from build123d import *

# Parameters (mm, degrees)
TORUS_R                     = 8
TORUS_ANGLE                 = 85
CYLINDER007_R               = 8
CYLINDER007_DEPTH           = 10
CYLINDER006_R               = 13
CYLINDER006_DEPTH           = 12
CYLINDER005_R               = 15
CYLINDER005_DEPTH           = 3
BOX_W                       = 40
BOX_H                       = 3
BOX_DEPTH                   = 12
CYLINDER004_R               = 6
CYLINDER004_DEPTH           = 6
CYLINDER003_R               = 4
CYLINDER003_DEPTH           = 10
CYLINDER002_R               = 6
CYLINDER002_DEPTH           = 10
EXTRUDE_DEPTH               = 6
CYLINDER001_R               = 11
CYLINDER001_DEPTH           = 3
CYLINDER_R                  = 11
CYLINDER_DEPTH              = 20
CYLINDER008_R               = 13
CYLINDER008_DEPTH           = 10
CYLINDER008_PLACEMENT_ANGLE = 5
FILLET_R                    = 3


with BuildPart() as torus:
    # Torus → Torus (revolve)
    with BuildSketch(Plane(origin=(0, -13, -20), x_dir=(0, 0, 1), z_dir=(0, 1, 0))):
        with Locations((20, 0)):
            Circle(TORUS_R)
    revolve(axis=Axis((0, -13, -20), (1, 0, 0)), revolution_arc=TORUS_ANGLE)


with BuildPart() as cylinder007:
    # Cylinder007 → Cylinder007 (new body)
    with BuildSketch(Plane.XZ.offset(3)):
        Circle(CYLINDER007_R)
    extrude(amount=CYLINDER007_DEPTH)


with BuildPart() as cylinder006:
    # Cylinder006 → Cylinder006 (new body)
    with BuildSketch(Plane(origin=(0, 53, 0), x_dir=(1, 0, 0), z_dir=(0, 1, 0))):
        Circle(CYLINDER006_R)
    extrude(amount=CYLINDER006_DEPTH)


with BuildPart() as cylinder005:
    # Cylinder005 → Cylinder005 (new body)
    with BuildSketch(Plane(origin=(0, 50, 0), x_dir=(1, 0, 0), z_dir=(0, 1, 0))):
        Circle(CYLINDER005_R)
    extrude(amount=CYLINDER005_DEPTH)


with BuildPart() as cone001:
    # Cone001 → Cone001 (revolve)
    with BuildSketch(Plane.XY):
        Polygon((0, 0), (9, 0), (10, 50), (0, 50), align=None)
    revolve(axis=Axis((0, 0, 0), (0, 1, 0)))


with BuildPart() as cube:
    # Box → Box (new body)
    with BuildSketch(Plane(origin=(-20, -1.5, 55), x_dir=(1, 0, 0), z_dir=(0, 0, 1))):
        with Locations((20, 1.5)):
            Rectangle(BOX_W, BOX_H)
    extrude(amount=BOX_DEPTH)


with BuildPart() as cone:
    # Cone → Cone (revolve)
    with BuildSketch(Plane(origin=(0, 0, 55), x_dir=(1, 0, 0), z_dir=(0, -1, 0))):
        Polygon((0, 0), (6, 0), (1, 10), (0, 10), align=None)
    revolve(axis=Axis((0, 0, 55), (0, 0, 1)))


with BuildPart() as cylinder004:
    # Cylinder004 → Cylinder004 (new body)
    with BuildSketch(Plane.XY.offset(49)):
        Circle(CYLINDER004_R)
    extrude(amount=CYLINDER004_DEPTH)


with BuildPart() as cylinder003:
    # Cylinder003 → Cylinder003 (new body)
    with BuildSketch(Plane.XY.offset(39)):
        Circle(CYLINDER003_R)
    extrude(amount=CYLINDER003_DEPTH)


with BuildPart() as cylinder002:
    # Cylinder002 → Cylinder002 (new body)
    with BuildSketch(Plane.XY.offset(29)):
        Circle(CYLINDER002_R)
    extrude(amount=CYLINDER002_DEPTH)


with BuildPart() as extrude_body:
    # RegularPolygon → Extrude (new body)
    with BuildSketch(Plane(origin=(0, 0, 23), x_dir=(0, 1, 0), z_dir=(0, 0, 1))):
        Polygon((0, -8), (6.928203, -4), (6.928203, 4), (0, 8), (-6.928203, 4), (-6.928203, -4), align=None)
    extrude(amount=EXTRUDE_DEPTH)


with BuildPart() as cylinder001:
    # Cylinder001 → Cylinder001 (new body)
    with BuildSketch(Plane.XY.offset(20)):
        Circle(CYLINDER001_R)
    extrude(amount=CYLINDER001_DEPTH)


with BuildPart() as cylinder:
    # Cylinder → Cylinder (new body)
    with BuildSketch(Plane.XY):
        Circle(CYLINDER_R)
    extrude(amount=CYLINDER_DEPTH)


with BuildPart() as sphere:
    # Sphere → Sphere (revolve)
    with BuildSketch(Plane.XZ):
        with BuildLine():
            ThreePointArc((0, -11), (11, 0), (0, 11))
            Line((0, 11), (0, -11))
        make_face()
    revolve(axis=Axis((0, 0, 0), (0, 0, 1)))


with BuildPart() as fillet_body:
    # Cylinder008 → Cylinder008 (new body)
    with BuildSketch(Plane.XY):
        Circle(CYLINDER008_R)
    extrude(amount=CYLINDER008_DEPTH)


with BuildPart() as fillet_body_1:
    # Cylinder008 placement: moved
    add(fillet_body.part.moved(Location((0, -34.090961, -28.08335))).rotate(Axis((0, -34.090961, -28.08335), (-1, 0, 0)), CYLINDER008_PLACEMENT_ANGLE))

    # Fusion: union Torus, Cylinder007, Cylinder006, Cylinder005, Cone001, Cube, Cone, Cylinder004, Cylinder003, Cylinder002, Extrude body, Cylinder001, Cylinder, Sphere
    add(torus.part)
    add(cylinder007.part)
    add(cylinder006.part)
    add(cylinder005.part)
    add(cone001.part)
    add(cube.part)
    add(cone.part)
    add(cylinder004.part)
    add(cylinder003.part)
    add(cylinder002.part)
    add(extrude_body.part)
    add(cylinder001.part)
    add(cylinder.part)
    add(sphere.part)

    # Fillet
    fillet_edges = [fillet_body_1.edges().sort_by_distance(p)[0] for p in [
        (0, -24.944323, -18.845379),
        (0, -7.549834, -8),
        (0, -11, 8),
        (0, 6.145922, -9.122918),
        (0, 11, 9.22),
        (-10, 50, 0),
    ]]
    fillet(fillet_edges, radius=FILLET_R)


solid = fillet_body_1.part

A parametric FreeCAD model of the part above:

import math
import FreeCAD as App
import Part
import Sketcher

V = App.Vector
Q = App.Units.Quantity


def edges_at(feature, points):
    """Names of the edges that pass closest to the given points."""
    edges = feature.Shape.Edges
    near = lambda p: min(range(len(edges)), key=lambda i: edges[i].distToShape(Part.Vertex(*p))[0])
    return sorted({f"Edge{near(p) + 1}" for p in points})

doc = App.newDocument("Part")
body = doc.addObject("PartDesign::Body", "Body")

# Sketch on XZ plane
sketch1 = doc.addObject("Sketcher::SketchObject", "Sketch")
body.addObject(sketch1)
sketch1.AttachmentSupport = (doc.XZ_Plane, [""])
sketch1.MapMode = "FlatFace"
sketch1.AttachmentOffset = App.Placement(V(0, 0, 13), App.Rotation())
sketch1.addGeometry(Part.Circle(V(0, 0, 0), V(0, 0, 1), 8), False)
sketch1.addGeometry(Part.LineSegment(V(0, -20, 0), V(10, -20, 0)), True)  # axis
sketch1.addConstraint([
    Sketcher.Constraint("Horizontal", 1),
    Sketcher.Constraint("Coincident", 0, 3, -1, 1),
    Sketcher.Constraint("PointOnObject", 1, 1, -2),
    Sketcher.Constraint("Diameter", 0, Q("16 mm")),
    Sketcher.Constraint("DistanceX", 1, 1, 1, 2, Q("10 mm")),
    Sketcher.Constraint("DistanceY", 1, 1, -1, 1, Q("20 mm")),
])
revolution = doc.addObject("PartDesign::Revolution", "Revolution")
body.addObject(revolution)
revolution.Profile = sketch1
revolution.ReferenceAxis = (sketch1, ["Axis0"])
revolution.Angle = 85
body2 = doc.addObject("PartDesign::Body", "Body001")

# Sketch on XZ plane
sketch2 = doc.addObject("Sketcher::SketchObject", "Sketch001")
body2.addObject(sketch2)
sketch2.AttachmentSupport = (doc.getObject("XZ_Plane001"), [""])
sketch2.MapMode = "FlatFace"
sketch2.AttachmentOffset = App.Placement(V(0, 0, 3), App.Rotation())
sketch2.addGeometry(Part.Circle(V(0, 0, 0), V(0, 0, 1), 8), False)
sketch2.addConstraint([
    Sketcher.Constraint("Coincident", 0, 3, -1, 1),
    Sketcher.Constraint("Diameter", 0, Q("16 mm")),
])
pad1 = doc.addObject("PartDesign::Pad", "Pad")
body2.addObject(pad1)
pad1.Profile = sketch2
pad1.Length = 10
body3 = doc.addObject("PartDesign::Body", "Body002")

# Sketch on XZ plane
sketch3 = doc.addObject("Sketcher::SketchObject", "Sketch002")
body3.addObject(sketch3)
sketch3.AttachmentSupport = (doc.getObject("XZ_Plane002"), [""])
sketch3.MapMode = "FlatFace"
sketch3.AttachmentOffset = App.Placement(V(0, 0, -53), App.Rotation())
sketch3.addGeometry(Part.Circle(V(0, 0, 0), V(0, 0, 1), 13), False)
sketch3.addConstraint([
    Sketcher.Constraint("Coincident", 0, 3, -1, 1),
    Sketcher.Constraint("Diameter", 0, Q("26 mm")),
])
pad2 = doc.addObject("PartDesign::Pad", "Pad001")
body3.addObject(pad2)
pad2.Profile = sketch3
pad2.Length = 12
pad2.Reversed = True
body4 = doc.addObject("PartDesign::Body", "Body003")

# Sketch on XZ plane
sketch4 = doc.addObject("Sketcher::SketchObject", "Sketch003")
body4.addObject(sketch4)
sketch4.AttachmentSupport = (doc.getObject("XZ_Plane003"), [""])
sketch4.MapMode = "FlatFace"
sketch4.AttachmentOffset = App.Placement(V(0, 0, -50), App.Rotation())
sketch4.addGeometry(Part.Circle(V(0, 0, 0), V(0, 0, 1), 15), False)
sketch4.addConstraint([
    Sketcher.Constraint("Coincident", 0, 3, -1, 1),
    Sketcher.Constraint("Diameter", 0, Q("30 mm")),
])
pad3 = doc.addObject("PartDesign::Pad", "Pad002")
body4.addObject(pad3)
pad3.Profile = sketch4
pad3.Length = 3
pad3.Reversed = True
body5 = doc.addObject("PartDesign::Body", "Body004")

# Sketch on XY plane
sketch5 = doc.addObject("Sketcher::SketchObject", "Sketch004")
body5.addObject(sketch5)
sketch5.AttachmentSupport = (doc.getObject("XY_Plane004"), [""])
sketch5.MapMode = "FlatFace"
sketch5.addGeometry([
    Part.LineSegment(V(0, 0, 0), V(9, 0, 0)),
    Part.LineSegment(V(9, 0, 0), V(10, 50, 0)),
    Part.LineSegment(V(10, 50, 0), V(0, 50, 0)),
    Part.LineSegment(V(0, 50, 0), V(0, 0, 0)),
], False)
sketch5.addConstraint([
    Sketcher.Constraint("Coincident", 0, 2, 1, 1),
    Sketcher.Constraint("Coincident", 1, 2, 2, 1),
    Sketcher.Constraint("Coincident", 2, 2, 3, 1),
    Sketcher.Constraint("Coincident", 3, 2, 0, 1),
    Sketcher.Constraint("Horizontal", 0),
    Sketcher.Constraint("Horizontal", 2),
    Sketcher.Constraint("Vertical", 3),
    Sketcher.Constraint("Coincident", 3, 2, -1, 1),
    Sketcher.Constraint("DistanceX", 0, 1, 0, 2, Q("9 mm")),
    Sketcher.Constraint("DistanceX", 2, 2, 2, 1, Q("10 mm")),
    Sketcher.Constraint("DistanceY", 3, 2, 3, 1, Q("50 mm")),
])
revolution2 = doc.addObject("PartDesign::Revolution", "Revolution001")
body5.addObject(revolution2)
revolution2.Profile = sketch5
revolution2.ReferenceAxis = (sketch5, ["V_Axis"])
revolution2.Angle = 360
body6 = doc.addObject("PartDesign::Body", "Body005")

# Sketch on XY plane
sketch6 = doc.addObject("Sketcher::SketchObject", "Sketch005")
body6.addObject(sketch6)
sketch6.AttachmentSupport = (doc.getObject("XY_Plane005"), [""])
sketch6.MapMode = "FlatFace"
sketch6.AttachmentOffset = App.Placement(V(0, 0, 55), App.Rotation())
sketch6.addGeometry([
    Part.LineSegment(V(-20, 1.5, 0), V(-20, -1.5, 0)),
    Part.LineSegment(V(-20, -1.5, 0), V(20, -1.5, 0)),
    Part.LineSegment(V(20, -1.5, 0), V(20, 1.5, 0)),
    Part.LineSegment(V(20, 1.5, 0), V(-20, 1.5, 0)),
], False)
sketch6.addConstraint([
    Sketcher.Constraint("Coincident", 0, 2, 1, 1),
    Sketcher.Constraint("Coincident", 1, 2, 2, 1),
    Sketcher.Constraint("Coincident", 2, 2, 3, 1),
    Sketcher.Constraint("Coincident", 3, 2, 0, 1),
    Sketcher.Constraint("Vertical", 0),
    Sketcher.Constraint("Horizontal", 1),
    Sketcher.Constraint("Vertical", 2),
    Sketcher.Constraint("Horizontal", 3),
    Sketcher.Constraint("Symmetric", 0, 2, 2, 2, -1, 1),
    Sketcher.Constraint("DistanceX", 1, 1, 1, 2, Q("40 mm")),
    Sketcher.Constraint("DistanceY", 0, 2, 0, 1, Q("3 mm")),
])
pad4 = doc.addObject("PartDesign::Pad", "Pad003")
body6.addObject(pad4)
pad4.Profile = sketch6
pad4.Length = 12
body7 = doc.addObject("PartDesign::Body", "Body006")

# Sketch on XZ plane
sketch7 = doc.addObject("Sketcher::SketchObject", "Sketch006")
body7.addObject(sketch7)
sketch7.AttachmentSupport = (doc.getObject("XZ_Plane006"), [""])
sketch7.MapMode = "FlatFace"
sketch7.addGeometry([
    Part.LineSegment(V(0, 55, 0), V(6, 55, 0)),
    Part.LineSegment(V(6, 55, 0), V(1, 65, 0)),
    Part.LineSegment(V(1, 65, 0), V(0, 65, 0)),
    Part.LineSegment(V(0, 65, 0), V(0, 55, 0)),
], False)
sketch7.addConstraint([
    Sketcher.Constraint("Coincident", 0, 2, 1, 1),
    Sketcher.Constraint("Coincident", 1, 2, 2, 1),
    Sketcher.Constraint("Coincident", 2, 2, 3, 1),
    Sketcher.Constraint("Coincident", 3, 2, 0, 1),
    Sketcher.Constraint("Horizontal", 0),
    Sketcher.Constraint("Horizontal", 2),
    Sketcher.Constraint("Vertical", 3),
    Sketcher.Constraint("PointOnObject", 2, 2, -2),
    Sketcher.Constraint("DistanceX", 0, 1, 0, 2, Q("6 mm")),
    Sketcher.Constraint("DistanceX", 2, 2, 2, 1, Q("1 mm")),
    Sketcher.Constraint("DistanceY", 3, 2, 3, 1, Q("10 mm")),
    Sketcher.Constraint("DistanceY", -1, 1, 0, 2, Q("55 mm")),
])
revolution3 = doc.addObject("PartDesign::Revolution", "Revolution002")
body7.addObject(revolution3)
revolution3.Profile = sketch7
revolution3.ReferenceAxis = (sketch7, ["V_Axis"])
revolution3.Angle = 360
body8 = doc.addObject("PartDesign::Body", "Body007")

# Sketch on XY plane
sketch8 = doc.addObject("Sketcher::SketchObject", "Sketch007")
body8.addObject(sketch8)
sketch8.AttachmentSupport = (doc.getObject("XY_Plane007"), [""])
sketch8.MapMode = "FlatFace"
sketch8.AttachmentOffset = App.Placement(V(0, 0, 49), App.Rotation())
sketch8.addGeometry(Part.Circle(V(0, 0, 0), V(0, 0, 1), 6), False)
sketch8.addConstraint([
    Sketcher.Constraint("Coincident", 0, 3, -1, 1),
    Sketcher.Constraint("Diameter", 0, Q("12 mm")),
])
pad5 = doc.addObject("PartDesign::Pad", "Pad004")
body8.addObject(pad5)
pad5.Profile = sketch8
pad5.Length = 6
body9 = doc.addObject("PartDesign::Body", "Body008")

# Sketch on XY plane
sketch9 = doc.addObject("Sketcher::SketchObject", "Sketch008")
body9.addObject(sketch9)
sketch9.AttachmentSupport = (doc.getObject("XY_Plane008"), [""])
sketch9.MapMode = "FlatFace"
sketch9.AttachmentOffset = App.Placement(V(0, 0, 39), App.Rotation())
sketch9.addGeometry(Part.Circle(V(0, 0, 0), V(0, 0, 1), 4), False)
sketch9.addConstraint([
    Sketcher.Constraint("Coincident", 0, 3, -1, 1),
    Sketcher.Constraint("Diameter", 0, Q("8 mm")),
])
pad6 = doc.addObject("PartDesign::Pad", "Pad005")
body9.addObject(pad6)
pad6.Profile = sketch9
pad6.Length = 10
body10 = doc.addObject("PartDesign::Body", "Body009")

# Sketch on XY plane
sketch10 = doc.addObject("Sketcher::SketchObject", "Sketch009")
body10.addObject(sketch10)
sketch10.AttachmentSupport = (doc.getObject("XY_Plane009"), [""])
sketch10.MapMode = "FlatFace"
sketch10.AttachmentOffset = App.Placement(V(0, 0, 29), App.Rotation())
sketch10.addGeometry(Part.Circle(V(0, 0, 0), V(0, 0, 1), 6), False)
sketch10.addConstraint([
    Sketcher.Constraint("Coincident", 0, 3, -1, 1),
    Sketcher.Constraint("Diameter", 0, Q("12 mm")),
])
pad7 = doc.addObject("PartDesign::Pad", "Pad006")
body10.addObject(pad7)
pad7.Profile = sketch10
pad7.Length = 10
body11 = doc.addObject("PartDesign::Body", "Body010")

# Sketch on XY plane
sketch11 = doc.addObject("Sketcher::SketchObject", "Sketch010")
body11.addObject(sketch11)
sketch11.AttachmentSupport = (doc.getObject("XY_Plane010"), [""])
sketch11.MapMode = "FlatFace"
sketch11.AttachmentOffset = App.Placement(V(0, 0, 23), App.Rotation())
sketch11.addGeometry([
    Part.LineSegment(V(8, 0, 0), V(4, 6.928203, 0)),  # 0
    Part.LineSegment(V(4, 6.928203, 0), V(-4, 6.928203, 0)),  # 1
    Part.LineSegment(V(-4, 6.928203, 0), V(-8, 0, 0)),  # 2
    Part.LineSegment(V(-8, 0, 0), V(-4, -6.928203, 0)),  # 3
    Part.LineSegment(V(-4, -6.928203, 0), V(4, -6.928203, 0)),  # 4
    Part.LineSegment(V(4, -6.928203, 0), V(8, 0, 0)),  # 5
], False)
sketch11.addConstraint([
    Sketcher.Constraint("Coincident", 0, 2, 1, 1),
    Sketcher.Constraint("Coincident", 1, 2, 2, 1),
    Sketcher.Constraint("Coincident", 2, 2, 3, 1),
    Sketcher.Constraint("Coincident", 3, 2, 4, 1),
    Sketcher.Constraint("Coincident", 4, 2, 5, 1),
    Sketcher.Constraint("Coincident", 5, 2, 0, 1),
    Sketcher.Constraint("Horizontal", 1),
    Sketcher.Constraint("Horizontal", 4),
    Sketcher.Constraint("Symmetric", 0, 2, 3, 2, -1, 1),
    Sketcher.Constraint("Symmetric", 2, 2, 5, 2, -1, 1),
    Sketcher.Constraint("PointOnObject", 2, 2, -1),
    Sketcher.Constraint("Parallel", 2, 5),
    Sketcher.Constraint("Vertical", 1, 2, 3, 2),
    Sketcher.Constraint("DistanceX", 1, 2, 1, 1, Q("8 mm")),
    Sketcher.Constraint("Angle", 0, Q("120.000001 deg")),
    Sketcher.Constraint("Distance", 0, Q("8 mm")),
])
pad8 = doc.addObject("PartDesign::Pad", "Pad007")
body11.addObject(pad8)
pad8.Profile = sketch11
pad8.Length = 6
body12 = doc.addObject("PartDesign::Body", "Body011")

# Sketch on XY plane
sketch12 = doc.addObject("Sketcher::SketchObject", "Sketch011")
body12.addObject(sketch12)
sketch12.AttachmentSupport = (doc.getObject("XY_Plane011"), [""])
sketch12.MapMode = "FlatFace"
sketch12.AttachmentOffset = App.Placement(V(0, 0, 20), App.Rotation())
sketch12.addGeometry(Part.Circle(V(0, 0, 0), V(0, 0, 1), 11), False)
sketch12.addConstraint([
    Sketcher.Constraint("Coincident", 0, 3, -1, 1),
    Sketcher.Constraint("Diameter", 0, Q("22 mm")),
])
pad9 = doc.addObject("PartDesign::Pad", "Pad008")
body12.addObject(pad9)
pad9.Profile = sketch12
pad9.Length = 3
body13 = doc.addObject("PartDesign::Body", "Body012")

# Sketch on XY plane
sketch13 = doc.addObject("Sketcher::SketchObject", "Sketch012")
body13.addObject(sketch13)
sketch13.AttachmentSupport = (doc.getObject("XY_Plane012"), [""])
sketch13.MapMode = "FlatFace"
sketch13.addGeometry(Part.Circle(V(0, 0, 0), V(0, 0, 1), 11), False)
sketch13.addConstraint([
    Sketcher.Constraint("Coincident", 0, 3, -1, 1),
    Sketcher.Constraint("Diameter", 0, Q("22 mm")),
])
pad10 = doc.addObject("PartDesign::Pad", "Pad009")
body13.addObject(pad10)
pad10.Profile = sketch13
pad10.Length = 20
body14 = doc.addObject("PartDesign::Body", "Body013")

# Sketch on XZ plane
sketch14 = doc.addObject("Sketcher::SketchObject", "Sketch013")
body14.addObject(sketch14)
sketch14.AttachmentSupport = (doc.getObject("XZ_Plane013"), [""])
sketch14.MapMode = "FlatFace"
sketch14.addGeometry([
    Part.ArcOfCircle(Part.Circle(V(0, 0, 0), V(0, 0, 1), 11), math.radians(-90), math.radians(90)),
    Part.LineSegment(V(0, 11, 0), V(0, -11, 0)),
], False)
sketch14.addConstraint([
    Sketcher.Constraint("Coincident", 0, 1, 1, 2),
    Sketcher.Constraint("Coincident", 1, 1, 0, 2),
    Sketcher.Constraint("Vertical", 1),
    Sketcher.Constraint("Coincident", 0, 3, -1, 1),
    Sketcher.Constraint("PointOnObject", 0, 1, -2),
    Sketcher.Constraint("Radius", 0, Q("11 mm")),
])
revolution4 = doc.addObject("PartDesign::Revolution", "Revolution003")
body14.addObject(revolution4)
revolution4.Profile = sketch14
revolution4.ReferenceAxis = (sketch14, ["V_Axis"])
revolution4.Angle = 360
body15 = doc.addObject("PartDesign::Body", "Body014")

# Sketch on XY plane
sketch15 = doc.addObject("Sketcher::SketchObject", "Sketch014")
body15.addObject(sketch15)
sketch15.AttachmentSupport = (doc.getObject("XY_Plane014"), [""])
sketch15.MapMode = "FlatFace"
sketch15.addGeometry(Part.Circle(V(0, 0, 0), V(0, 0, 1), 13), False)
sketch15.addConstraint([
    Sketcher.Constraint("Coincident", 0, 3, -1, 1),
    Sketcher.Constraint("Diameter", 0, Q("26 mm")),
])
pad11 = doc.addObject("PartDesign::Pad", "Pad010")
body15.addObject(pad11)
pad11.Profile = sketch15
pad11.Length = 10
body16 = doc.addObject("PartDesign::Body", "Body015")
body16.AllowCompound = True
doc.recompute()

body15.Placement = App.Placement(V(0, -34.090961, -28.08335), App.Rotation(V(-1, 0, 0), 5))
boolean = doc.addObject("PartDesign::Boolean", "Boolean")
body16.addObject(boolean)
boolean.Type = "Fuse"
boolean.addObjects([body15])
doc.recompute()

boolean2 = doc.addObject("PartDesign::Boolean", "Boolean001")
body16.addObject(boolean2)
boolean2.Type = "Fuse"
boolean2.addObjects([body])
doc.recompute()

boolean3 = doc.addObject("PartDesign::Boolean", "Boolean002")
body16.addObject(boolean3)
boolean3.Type = "Fuse"
boolean3.addObjects([body2])
doc.recompute()

boolean4 = doc.addObject("PartDesign::Boolean", "Boolean003")
body16.addObject(boolean4)
boolean4.Type = "Fuse"
boolean4.addObjects([body3])
doc.recompute()

boolean5 = doc.addObject("PartDesign::Boolean", "Boolean004")
body16.addObject(boolean5)
boolean5.Type = "Fuse"
boolean5.addObjects([body4])
doc.recompute()

boolean6 = doc.addObject("PartDesign::Boolean", "Boolean005")
body16.addObject(boolean6)
boolean6.Type = "Fuse"
boolean6.addObjects([body5])
doc.recompute()

boolean7 = doc.addObject("PartDesign::Boolean", "Boolean006")
body16.addObject(boolean7)
boolean7.Type = "Fuse"
boolean7.addObjects([body6])
doc.recompute()

boolean8 = doc.addObject("PartDesign::Boolean", "Boolean007")
body16.addObject(boolean8)
boolean8.Type = "Fuse"
boolean8.addObjects([body7])
doc.recompute()

boolean9 = doc.addObject("PartDesign::Boolean", "Boolean008")
body16.addObject(boolean9)
boolean9.Type = "Fuse"
boolean9.addObjects([body8])
doc.recompute()

boolean10 = doc.addObject("PartDesign::Boolean", "Boolean009")
body16.addObject(boolean10)
boolean10.Type = "Fuse"
boolean10.addObjects([body9])
doc.recompute()

boolean11 = doc.addObject("PartDesign::Boolean", "Boolean010")
body16.addObject(boolean11)
boolean11.Type = "Fuse"
boolean11.addObjects([body10])
doc.recompute()

boolean12 = doc.addObject("PartDesign::Boolean", "Boolean011")
body16.addObject(boolean12)
boolean12.Type = "Fuse"
boolean12.addObjects([body11])
doc.recompute()

boolean13 = doc.addObject("PartDesign::Boolean", "Boolean012")
body16.addObject(boolean13)
boolean13.Type = "Fuse"
boolean13.addObjects([body12])
doc.recompute()

boolean14 = doc.addObject("PartDesign::Boolean", "Boolean013")
body16.addObject(boolean14)
boolean14.Type = "Fuse"
boolean14.addObjects([body13])
doc.recompute()

boolean15 = doc.addObject("PartDesign::Boolean", "Boolean014")
body16.addObject(boolean15)
boolean15.Type = "Fuse"
boolean15.addObjects([body14])
doc.recompute()

fillet = doc.addObject("PartDesign::Fillet", "Fillet")
body16.addObject(fillet)
fillet.Base = (boolean15, edges_at(boolean15, [
    (0, -24.944, -18.845),
    (0, -7.55, -8),
    (0, -11, 8),
    (0, 6.146, -9.123),
    (0, 11, 9.22),
    (-10, 50, 0),
]))
fillet.Radius = 3

doc.recompute()
